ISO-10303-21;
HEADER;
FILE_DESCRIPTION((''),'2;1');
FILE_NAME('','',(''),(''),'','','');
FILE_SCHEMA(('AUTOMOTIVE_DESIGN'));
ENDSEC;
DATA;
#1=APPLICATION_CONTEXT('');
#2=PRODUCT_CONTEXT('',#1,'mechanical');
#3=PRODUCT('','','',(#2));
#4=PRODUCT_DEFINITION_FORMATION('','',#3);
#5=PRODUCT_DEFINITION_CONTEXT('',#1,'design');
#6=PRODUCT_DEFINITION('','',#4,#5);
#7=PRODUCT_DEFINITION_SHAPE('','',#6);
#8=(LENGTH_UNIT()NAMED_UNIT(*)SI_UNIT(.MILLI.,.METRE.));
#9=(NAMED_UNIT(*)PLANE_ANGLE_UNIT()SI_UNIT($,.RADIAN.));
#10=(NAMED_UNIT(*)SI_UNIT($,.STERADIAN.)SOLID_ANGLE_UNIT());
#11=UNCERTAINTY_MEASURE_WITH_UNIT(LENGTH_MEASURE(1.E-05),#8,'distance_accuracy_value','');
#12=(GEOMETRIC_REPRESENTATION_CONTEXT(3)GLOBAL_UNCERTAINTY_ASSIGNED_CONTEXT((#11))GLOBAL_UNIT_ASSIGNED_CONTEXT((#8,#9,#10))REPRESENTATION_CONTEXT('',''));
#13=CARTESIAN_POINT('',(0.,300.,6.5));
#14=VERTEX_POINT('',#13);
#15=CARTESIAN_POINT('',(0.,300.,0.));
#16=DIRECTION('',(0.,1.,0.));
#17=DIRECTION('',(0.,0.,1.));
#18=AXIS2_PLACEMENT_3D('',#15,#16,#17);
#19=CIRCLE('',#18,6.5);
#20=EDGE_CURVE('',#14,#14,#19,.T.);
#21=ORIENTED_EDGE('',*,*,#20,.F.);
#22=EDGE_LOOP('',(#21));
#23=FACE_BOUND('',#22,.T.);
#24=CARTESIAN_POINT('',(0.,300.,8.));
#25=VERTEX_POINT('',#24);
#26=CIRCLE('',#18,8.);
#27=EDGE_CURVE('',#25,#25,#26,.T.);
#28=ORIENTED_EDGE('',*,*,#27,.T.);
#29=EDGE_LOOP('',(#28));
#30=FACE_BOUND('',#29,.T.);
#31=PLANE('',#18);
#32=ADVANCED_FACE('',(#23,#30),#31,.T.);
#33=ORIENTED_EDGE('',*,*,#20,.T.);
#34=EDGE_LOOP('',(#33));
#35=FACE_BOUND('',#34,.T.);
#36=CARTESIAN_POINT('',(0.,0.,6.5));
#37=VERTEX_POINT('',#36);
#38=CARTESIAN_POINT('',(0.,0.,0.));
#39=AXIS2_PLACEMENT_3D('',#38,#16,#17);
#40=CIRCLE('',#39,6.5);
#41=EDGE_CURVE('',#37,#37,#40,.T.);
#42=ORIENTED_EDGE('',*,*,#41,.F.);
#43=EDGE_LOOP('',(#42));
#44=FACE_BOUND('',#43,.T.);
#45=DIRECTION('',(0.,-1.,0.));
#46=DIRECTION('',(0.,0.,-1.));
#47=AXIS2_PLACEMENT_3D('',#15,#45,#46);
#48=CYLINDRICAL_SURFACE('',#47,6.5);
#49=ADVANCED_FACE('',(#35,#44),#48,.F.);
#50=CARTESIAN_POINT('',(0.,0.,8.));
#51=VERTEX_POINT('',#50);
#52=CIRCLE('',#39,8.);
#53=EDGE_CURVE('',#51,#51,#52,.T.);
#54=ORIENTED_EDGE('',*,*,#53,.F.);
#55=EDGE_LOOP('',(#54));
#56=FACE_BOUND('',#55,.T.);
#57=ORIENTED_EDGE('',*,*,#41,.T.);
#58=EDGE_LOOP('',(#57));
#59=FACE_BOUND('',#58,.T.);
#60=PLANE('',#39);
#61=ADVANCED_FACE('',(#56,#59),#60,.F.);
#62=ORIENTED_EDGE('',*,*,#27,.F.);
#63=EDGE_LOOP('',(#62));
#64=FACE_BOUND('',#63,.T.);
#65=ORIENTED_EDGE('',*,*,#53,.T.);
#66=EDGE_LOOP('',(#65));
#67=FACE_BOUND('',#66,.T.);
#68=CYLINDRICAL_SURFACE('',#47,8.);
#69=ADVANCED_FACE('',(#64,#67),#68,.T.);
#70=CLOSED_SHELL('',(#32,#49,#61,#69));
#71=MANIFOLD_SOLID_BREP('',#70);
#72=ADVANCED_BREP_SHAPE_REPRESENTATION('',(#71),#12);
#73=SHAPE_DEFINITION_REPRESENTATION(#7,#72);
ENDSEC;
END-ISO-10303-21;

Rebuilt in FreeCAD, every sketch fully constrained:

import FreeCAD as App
import Part
import Sketcher
from FreeCAD import Vector
Q = App.Units.Quantity

doc = App.newDocument("Part")
body = doc.addObject("PartDesign::Body", "Body")

# Sketch on XZ plane
sketch1 = body.newObject("Sketcher::SketchObject", "Sketch")
sketch1.AttachmentSupport = (doc.getObject("XZ_Plane"), [""])
sketch1.MapMode = "FlatFace"
sketch1.addGeometry([
    Part.Circle(Vector(0, 0, 0), Vector(0, 0, 1), 8),
    Part.Circle(Vector(0, 0, 0), Vector(0, 0, 1), 6),
], False)
sketch1.addConstraint([
    Sketcher.Constraint("Coincident", 0, 3, -1, 1),
    Sketcher.Constraint("Coincident", 1, 3, -1, 1),
    Sketcher.Constraint("Diameter", 0, Q("16 mm")),
    Sketcher.Constraint("Diameter", 1, Q("13 mm")),
])
pad1 = body.newObject("PartDesign::Pad", "Pad")
pad1.Profile = sketch1
pad1.Length = 300
pad1.Reversed = True

doc.recompute()
